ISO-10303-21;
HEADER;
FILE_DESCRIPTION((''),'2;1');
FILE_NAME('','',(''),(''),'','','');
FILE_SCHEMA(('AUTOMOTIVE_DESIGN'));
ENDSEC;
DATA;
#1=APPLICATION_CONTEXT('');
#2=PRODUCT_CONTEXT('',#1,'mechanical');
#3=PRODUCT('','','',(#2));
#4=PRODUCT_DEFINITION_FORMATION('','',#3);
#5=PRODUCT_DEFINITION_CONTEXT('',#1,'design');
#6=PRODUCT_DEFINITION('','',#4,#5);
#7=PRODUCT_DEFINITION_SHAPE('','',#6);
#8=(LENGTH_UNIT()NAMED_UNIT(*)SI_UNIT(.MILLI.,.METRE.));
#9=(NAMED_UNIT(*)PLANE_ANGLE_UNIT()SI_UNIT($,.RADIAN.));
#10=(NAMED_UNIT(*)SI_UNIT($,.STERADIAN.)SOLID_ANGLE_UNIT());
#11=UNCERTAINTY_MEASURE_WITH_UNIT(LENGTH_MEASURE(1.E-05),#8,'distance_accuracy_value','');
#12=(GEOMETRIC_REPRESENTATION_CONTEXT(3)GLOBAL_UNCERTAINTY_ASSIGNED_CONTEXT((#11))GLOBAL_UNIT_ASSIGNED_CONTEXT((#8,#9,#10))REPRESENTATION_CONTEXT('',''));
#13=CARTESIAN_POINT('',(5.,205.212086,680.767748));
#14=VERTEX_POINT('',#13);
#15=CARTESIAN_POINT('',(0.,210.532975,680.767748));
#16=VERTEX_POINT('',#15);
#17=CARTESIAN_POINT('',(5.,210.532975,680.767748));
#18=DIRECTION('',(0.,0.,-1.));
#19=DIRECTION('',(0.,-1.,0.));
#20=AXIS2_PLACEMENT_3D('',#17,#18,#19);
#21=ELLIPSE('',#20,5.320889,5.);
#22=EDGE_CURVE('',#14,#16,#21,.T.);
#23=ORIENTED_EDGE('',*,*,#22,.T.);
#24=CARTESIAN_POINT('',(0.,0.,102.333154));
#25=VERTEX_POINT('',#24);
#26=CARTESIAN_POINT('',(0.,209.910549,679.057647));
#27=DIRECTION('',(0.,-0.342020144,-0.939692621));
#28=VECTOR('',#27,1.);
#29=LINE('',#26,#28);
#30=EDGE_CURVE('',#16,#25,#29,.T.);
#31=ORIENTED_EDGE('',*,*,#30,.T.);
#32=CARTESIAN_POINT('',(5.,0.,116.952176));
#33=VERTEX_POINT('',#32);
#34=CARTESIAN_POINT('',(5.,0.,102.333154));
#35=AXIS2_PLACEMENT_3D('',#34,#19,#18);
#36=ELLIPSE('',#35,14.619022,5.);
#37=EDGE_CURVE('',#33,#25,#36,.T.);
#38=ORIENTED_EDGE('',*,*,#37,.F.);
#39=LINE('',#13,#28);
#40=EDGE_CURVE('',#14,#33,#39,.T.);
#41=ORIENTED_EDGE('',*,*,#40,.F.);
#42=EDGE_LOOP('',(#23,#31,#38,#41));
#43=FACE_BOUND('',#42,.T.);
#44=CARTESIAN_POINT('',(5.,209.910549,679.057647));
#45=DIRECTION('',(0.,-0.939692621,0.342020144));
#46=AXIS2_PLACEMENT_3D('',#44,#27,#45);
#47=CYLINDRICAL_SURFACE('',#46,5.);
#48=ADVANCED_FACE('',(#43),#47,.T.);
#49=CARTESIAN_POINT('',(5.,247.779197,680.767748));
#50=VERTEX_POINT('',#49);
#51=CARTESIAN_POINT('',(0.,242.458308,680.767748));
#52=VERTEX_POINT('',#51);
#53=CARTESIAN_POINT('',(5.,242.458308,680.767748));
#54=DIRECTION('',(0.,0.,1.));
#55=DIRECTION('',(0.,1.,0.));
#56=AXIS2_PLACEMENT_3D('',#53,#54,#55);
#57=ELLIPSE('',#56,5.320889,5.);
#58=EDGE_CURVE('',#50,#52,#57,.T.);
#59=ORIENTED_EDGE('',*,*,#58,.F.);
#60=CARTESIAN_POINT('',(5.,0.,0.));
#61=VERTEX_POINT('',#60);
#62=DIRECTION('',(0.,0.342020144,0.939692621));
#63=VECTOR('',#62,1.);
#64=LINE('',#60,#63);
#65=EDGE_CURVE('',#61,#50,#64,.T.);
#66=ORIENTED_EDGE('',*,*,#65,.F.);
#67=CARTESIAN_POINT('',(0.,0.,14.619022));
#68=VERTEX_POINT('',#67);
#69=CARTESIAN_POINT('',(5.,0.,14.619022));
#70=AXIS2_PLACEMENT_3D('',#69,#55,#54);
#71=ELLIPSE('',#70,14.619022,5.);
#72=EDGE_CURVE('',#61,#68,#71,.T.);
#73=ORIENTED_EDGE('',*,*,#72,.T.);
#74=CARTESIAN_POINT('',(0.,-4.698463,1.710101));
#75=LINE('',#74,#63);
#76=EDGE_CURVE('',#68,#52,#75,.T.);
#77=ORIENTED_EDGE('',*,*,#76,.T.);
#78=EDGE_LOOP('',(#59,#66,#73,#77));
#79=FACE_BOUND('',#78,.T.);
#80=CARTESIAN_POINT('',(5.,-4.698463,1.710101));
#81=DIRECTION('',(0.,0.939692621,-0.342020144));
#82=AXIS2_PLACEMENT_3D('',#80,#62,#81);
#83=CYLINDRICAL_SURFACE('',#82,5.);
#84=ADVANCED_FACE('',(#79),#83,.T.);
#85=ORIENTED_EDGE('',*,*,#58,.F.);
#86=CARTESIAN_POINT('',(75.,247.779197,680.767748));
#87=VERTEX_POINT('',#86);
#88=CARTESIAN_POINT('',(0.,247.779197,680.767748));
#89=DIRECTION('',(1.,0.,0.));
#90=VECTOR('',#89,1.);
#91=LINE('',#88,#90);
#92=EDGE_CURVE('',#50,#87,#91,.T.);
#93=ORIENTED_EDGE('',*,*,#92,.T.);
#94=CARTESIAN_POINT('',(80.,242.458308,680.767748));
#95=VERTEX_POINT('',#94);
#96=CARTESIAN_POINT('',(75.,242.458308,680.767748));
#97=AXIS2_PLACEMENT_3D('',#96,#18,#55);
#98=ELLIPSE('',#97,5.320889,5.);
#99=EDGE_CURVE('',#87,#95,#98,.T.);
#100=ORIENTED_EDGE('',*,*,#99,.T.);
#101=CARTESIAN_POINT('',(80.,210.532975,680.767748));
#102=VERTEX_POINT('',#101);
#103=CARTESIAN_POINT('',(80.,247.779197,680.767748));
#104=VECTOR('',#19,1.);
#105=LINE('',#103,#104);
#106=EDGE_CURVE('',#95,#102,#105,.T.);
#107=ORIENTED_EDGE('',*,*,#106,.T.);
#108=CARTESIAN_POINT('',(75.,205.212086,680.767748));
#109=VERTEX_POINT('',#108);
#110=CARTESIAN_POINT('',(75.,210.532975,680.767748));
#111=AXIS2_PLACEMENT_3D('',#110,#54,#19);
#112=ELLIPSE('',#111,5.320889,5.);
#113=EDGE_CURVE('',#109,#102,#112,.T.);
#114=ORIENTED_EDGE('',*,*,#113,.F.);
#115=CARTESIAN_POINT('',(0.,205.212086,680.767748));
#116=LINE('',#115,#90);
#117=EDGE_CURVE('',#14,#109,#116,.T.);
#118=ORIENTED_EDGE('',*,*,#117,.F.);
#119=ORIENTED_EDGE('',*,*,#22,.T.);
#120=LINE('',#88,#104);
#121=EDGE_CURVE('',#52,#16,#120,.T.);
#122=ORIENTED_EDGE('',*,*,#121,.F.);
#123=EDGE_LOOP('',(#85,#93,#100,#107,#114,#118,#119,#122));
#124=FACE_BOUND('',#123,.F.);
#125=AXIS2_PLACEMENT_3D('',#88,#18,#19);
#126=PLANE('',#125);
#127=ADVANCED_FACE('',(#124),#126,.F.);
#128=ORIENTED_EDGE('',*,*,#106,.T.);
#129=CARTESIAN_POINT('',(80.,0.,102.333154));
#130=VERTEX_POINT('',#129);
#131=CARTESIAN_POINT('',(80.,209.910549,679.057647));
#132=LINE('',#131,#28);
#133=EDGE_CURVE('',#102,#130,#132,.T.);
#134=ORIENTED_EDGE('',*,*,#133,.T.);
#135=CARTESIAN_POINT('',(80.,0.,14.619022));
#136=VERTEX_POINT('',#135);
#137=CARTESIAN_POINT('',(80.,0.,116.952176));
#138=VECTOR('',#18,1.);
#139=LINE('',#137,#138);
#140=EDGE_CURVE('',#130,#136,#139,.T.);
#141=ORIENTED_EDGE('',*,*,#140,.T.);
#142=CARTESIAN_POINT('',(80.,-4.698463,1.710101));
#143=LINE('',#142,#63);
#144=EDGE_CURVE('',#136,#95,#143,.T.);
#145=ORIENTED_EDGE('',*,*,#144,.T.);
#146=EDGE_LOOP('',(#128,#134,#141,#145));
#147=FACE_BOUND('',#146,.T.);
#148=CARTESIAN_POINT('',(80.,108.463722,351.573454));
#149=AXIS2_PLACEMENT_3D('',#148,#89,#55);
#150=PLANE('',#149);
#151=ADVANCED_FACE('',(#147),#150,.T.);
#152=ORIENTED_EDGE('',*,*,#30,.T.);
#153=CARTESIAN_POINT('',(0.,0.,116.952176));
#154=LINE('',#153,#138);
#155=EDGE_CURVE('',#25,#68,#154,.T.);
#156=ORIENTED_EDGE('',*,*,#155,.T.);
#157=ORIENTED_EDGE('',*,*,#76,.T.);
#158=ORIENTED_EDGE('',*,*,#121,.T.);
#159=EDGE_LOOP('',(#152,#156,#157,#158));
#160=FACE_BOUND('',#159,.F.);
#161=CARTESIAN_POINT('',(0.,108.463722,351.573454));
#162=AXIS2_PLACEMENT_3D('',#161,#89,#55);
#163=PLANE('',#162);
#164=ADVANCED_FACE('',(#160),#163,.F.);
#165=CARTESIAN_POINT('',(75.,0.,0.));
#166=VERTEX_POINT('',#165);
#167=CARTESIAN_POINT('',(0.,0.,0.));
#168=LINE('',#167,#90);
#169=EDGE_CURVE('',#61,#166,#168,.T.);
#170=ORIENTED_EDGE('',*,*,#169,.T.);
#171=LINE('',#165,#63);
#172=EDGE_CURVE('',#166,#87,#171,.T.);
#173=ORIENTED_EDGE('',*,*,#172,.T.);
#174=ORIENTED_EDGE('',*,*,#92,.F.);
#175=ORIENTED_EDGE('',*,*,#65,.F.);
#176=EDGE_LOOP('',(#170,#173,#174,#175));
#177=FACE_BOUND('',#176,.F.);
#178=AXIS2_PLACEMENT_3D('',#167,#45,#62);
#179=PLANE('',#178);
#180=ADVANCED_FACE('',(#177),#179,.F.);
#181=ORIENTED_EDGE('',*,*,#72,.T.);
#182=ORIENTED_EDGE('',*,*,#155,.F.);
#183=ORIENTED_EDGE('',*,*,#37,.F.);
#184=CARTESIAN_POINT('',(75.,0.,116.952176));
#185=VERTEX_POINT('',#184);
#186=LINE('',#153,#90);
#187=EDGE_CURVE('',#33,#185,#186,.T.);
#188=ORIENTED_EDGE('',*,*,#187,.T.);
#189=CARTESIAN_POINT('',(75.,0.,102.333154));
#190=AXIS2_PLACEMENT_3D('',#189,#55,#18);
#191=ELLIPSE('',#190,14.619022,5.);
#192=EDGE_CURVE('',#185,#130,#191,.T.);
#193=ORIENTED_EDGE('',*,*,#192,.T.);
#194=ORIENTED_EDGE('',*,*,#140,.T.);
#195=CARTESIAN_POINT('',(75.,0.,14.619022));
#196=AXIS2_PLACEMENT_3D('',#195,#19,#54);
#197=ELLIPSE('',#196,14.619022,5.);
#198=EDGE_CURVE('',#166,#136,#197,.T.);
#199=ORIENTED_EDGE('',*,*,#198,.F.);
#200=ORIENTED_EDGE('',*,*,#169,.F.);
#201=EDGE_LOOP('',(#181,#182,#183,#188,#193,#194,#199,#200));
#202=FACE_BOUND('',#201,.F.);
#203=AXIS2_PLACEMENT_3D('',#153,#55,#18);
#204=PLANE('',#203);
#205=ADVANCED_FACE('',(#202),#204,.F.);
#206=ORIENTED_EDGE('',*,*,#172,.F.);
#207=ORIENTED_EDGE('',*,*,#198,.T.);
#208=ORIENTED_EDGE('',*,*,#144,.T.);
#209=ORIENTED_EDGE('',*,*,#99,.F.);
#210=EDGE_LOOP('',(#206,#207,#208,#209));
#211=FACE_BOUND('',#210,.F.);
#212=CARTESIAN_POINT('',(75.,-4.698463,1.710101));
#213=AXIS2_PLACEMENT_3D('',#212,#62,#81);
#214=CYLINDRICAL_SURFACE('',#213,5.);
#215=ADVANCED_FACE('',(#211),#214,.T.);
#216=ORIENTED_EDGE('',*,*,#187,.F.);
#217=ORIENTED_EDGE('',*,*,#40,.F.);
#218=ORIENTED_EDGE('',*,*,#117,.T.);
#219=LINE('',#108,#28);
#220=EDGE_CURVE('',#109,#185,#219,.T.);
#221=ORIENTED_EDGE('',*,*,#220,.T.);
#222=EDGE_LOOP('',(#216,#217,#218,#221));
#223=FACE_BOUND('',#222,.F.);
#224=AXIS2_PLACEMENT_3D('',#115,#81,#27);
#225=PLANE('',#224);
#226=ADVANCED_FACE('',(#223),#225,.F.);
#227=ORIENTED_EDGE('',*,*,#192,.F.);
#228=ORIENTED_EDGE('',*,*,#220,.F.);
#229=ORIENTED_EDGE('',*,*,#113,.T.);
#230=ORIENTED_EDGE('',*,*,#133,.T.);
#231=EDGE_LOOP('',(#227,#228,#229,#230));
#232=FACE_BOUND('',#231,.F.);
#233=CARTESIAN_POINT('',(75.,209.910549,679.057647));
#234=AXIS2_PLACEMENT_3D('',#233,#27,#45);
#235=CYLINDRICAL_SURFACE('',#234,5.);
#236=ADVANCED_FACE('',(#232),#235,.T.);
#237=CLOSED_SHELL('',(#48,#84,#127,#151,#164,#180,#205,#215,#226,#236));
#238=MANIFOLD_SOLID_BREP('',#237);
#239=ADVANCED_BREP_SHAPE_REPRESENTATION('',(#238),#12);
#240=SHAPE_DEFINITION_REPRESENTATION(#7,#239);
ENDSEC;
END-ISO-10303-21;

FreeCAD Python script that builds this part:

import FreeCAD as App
import Part
import Sketcher
Q = App.Units.Quantity


def edges_at(feature, points):
    """Names of the edges that pass closest to the given points."""
    edges = feature.Shape.Edges
    near = lambda p: min(range(len(edges)), key=lambda i: edges[i].distToShape(Part.Vertex(*p))[0])
    return sorted({f"Edge{near(p) + 1}" for p in points})

doc = App.newDocument("Part")
params = doc.addObject("Spreadsheet::Sheet", "Params")
for row, (alias, value) in enumerate([
    ("sketch1_length", "600 mm"),
    ("pad1_length", "80 mm"),
    ("fillet_radius", "5 mm"),
], start=1):
    params.set(f"A{row}", alias)
    params.set(f"B{row}", "=" + value)
    params.setAlias(f"B{row}", alias)

body = doc.addObject("PartDesign::Body", "Body")

sketch1 = doc.addObject("Sketcher::SketchObject", "Sketch")
body.addObject(sketch1)
sketch1.AttachmentSupport = (doc.YZ_Plane, [""])
sketch1.MapMode = "FlatFace"
sketch1.addGeometry([
    Part.LineSegment(App.Vector(0, 117, 0), App.Vector(0, 0, 0)),
    Part.LineSegment(App.Vector(0, 0, 0), App.Vector(248, 681, 0)),
    Part.LineSegment(App.Vector(248, 681, 0), App.Vector(205, 681, 0)),
    Part.LineSegment(App.Vector(205, 681, 0), App.Vector(0, 117, 0)),
], False)
sketch1.addConstraint([
    Sketcher.Constraint("Coincident", 0, 2, 1, 1),
    Sketcher.Constraint("Coincident", 1, 2, 2, 1),
    Sketcher.Constraint("Coincident", 2, 2, 3, 1),
    Sketcher.Constraint("Coincident", 3, 2, 0, 1),
    Sketcher.Constraint("Vertical", 0),
    Sketcher.Constraint("Horizontal", 2),
    Sketcher.Constraint("Coincident", 0, 2, -1, 1),
    Sketcher.Constraint("Parallel", 1, 3),
    Sketcher.Constraint("Angle", 1, Q("70 deg")),
    Sketcher.Constraint("Distance", 3, 600.0),
    Sketcher.Constraint("DistanceX", 2, 2, 2, 1, 42.567111),
])
sketch1.setExpression("Constraints[9]", "Params.sketch1_length")
pad1 = doc.addObject("PartDesign::Pad", "Pad")
body.addObject(pad1)
pad1.Profile = sketch1
pad1.setExpression("Length", "Params.pad1_length")
doc.recompute()

fillet = doc.addObject("PartDesign::Fillet", "Fillet")
body.addObject(fillet)
fillet.Base = (pad1, edges_at(pad1, [
    (80, 123.89, 340.384),
    (80, 102.606, 398.86),
    (0, 102.606, 398.86),
    (0, 123.89, 340.384),
]))
fillet.setExpression("Radius", "Params.fillet_radius")

doc.recompute()
